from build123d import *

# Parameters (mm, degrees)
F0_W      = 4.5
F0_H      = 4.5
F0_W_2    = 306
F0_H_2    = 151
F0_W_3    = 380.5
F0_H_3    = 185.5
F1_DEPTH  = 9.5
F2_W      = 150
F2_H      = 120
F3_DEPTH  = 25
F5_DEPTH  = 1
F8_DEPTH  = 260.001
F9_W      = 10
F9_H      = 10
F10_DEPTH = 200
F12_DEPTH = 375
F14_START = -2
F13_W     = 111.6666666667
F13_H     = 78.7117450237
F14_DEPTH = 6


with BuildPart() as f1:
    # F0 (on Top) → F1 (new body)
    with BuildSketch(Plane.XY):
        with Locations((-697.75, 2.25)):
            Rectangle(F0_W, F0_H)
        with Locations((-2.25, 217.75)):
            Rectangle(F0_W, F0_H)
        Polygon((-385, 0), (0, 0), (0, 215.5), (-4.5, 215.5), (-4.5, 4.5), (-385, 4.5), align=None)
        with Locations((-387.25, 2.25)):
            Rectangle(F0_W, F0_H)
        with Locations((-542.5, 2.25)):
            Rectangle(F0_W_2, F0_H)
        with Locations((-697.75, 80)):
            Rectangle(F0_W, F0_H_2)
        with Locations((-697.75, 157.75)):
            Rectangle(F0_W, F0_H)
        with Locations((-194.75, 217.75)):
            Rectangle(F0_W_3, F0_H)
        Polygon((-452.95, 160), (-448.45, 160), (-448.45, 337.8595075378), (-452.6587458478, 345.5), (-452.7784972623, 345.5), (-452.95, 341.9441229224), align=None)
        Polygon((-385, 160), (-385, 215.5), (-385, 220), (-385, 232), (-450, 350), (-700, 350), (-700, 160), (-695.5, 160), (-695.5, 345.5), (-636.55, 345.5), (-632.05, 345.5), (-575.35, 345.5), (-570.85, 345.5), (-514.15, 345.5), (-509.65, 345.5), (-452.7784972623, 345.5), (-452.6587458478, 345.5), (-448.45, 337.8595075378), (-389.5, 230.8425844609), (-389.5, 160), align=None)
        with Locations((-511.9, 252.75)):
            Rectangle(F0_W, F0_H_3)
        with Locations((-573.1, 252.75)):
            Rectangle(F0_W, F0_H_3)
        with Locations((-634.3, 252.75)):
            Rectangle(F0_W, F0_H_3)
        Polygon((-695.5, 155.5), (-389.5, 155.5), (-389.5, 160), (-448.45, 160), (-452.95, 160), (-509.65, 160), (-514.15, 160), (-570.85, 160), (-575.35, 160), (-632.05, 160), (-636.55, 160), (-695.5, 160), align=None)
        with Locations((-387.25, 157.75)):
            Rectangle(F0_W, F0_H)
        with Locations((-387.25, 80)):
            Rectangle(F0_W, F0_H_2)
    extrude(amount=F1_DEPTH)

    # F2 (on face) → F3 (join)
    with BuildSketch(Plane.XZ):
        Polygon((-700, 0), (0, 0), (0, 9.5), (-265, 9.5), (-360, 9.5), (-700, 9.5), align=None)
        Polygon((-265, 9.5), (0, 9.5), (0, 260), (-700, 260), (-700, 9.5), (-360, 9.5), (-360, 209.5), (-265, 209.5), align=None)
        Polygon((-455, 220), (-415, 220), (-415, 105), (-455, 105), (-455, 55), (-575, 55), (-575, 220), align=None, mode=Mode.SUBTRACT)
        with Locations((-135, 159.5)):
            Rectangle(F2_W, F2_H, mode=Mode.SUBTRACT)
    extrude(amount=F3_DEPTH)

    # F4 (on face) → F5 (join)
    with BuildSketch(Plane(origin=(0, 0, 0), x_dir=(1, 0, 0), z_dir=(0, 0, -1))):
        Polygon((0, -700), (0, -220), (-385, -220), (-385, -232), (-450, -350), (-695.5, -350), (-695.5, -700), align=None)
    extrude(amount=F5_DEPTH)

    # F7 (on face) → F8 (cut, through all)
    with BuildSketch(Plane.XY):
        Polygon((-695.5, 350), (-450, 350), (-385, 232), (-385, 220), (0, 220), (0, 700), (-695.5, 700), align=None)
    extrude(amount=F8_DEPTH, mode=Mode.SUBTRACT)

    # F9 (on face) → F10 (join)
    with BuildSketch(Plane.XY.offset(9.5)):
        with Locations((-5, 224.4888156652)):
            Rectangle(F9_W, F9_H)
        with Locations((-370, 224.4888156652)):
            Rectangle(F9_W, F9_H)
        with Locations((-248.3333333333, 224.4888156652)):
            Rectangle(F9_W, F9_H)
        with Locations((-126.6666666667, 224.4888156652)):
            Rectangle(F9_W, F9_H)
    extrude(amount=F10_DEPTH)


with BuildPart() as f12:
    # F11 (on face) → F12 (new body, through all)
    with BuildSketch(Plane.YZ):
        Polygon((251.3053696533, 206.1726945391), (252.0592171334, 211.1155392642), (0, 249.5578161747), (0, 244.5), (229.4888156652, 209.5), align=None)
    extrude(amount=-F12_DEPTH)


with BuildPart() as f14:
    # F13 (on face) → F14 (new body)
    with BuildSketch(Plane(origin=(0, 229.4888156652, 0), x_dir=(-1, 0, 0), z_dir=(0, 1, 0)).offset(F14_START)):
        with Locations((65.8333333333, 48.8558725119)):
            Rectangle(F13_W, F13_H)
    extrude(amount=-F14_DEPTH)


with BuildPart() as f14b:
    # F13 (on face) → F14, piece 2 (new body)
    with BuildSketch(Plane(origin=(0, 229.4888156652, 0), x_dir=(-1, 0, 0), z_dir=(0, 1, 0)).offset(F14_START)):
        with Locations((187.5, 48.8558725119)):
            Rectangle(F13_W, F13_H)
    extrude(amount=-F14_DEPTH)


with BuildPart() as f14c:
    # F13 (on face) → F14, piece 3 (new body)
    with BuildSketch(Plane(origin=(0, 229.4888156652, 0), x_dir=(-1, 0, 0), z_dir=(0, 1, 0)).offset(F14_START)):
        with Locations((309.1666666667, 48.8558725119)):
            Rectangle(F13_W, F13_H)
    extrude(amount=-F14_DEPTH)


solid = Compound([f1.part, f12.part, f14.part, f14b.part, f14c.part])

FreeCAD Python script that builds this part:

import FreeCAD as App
import Part
import Sketcher
Q = App.Units.Quantity


def add_polygon(sketch, points):
    """Adds a closed chain of lines whose ends are joined by coincident constraints."""
    first, n = sketch.GeometryCount, len(points)
    for a, b in zip(points, points[1:] + points[:1]):
        sketch.addGeometry(Part.LineSegment(App.Vector(*a, 0), App.Vector(*b, 0)), False)
    for i in range(n):
        sketch.addConstraint(Sketcher.Constraint("Coincident", first + i, 2, first + (i + 1) % n, 1))

doc = App.newDocument("Part")
params = doc.addObject("Spreadsheet::Sheet", "Params")
for row, (alias, value) in enumerate([
    ("sketch1_width", "700 mm"),
    ("sketch1_width2", "385 mm"),
    ("sketch1_width3", "250 mm"),
    ("sketch1_width4", "306 mm"),
    ("sketch1_height", "220 mm"),
    ("pad1_length", "9.5 mm"),
    ("sketch2_width", "700 mm"),
    ("sketch2_width2", "95 mm"),
    ("sketch2_width3", "160 mm"),
    ("sketch2_width4", "40 mm"),
    ("sketch2_width5", "150 mm"),
    ("pad2_length", "25 mm"),
    ("sketch3_width", "385 mm"),
    ("sketch3_height", "480 mm"),
    ("sketch3_height2", "12 mm"),
    ("sketch3_height3", "350 mm"),
    ("sketch3_width2", "245.5 mm"),
    ("pad3_length", "1 mm"),
    ("sketch4_width", "385 mm"),
    ("sketch4_height", "12 mm"),
    ("sketch4_height2", "480 mm"),
    ("sketch4_height3", "350 mm"),
    ("sketch4_width2", "245.5 mm"),
    ("sketch5_width", "10 mm"),
    ("pad4_length", "200 mm"),
    ("sketch6_length", "5 mm"),
    ("pad5_length", "375 mm"),
    ("pad6_length", "6 mm"),
    ("pad7_length", "6 mm"),
    ("pad8_length", "6 mm"),
], start=1):
    params.set(f"A{row}", alias)
    params.set(f"B{row}", "=" + value)
    params.setAlias(f"B{row}", alias)

body = doc.addObject("PartDesign::Body", "Body")
body.AllowCompound = True

sketch1 = body.newObject("Sketcher::SketchObject", "Sketch")
sketch1.AttachmentSupport = (doc.getObject("XY_Plane"), [""])
sketch1.MapMode = "FlatFace"
add_polygon(sketch1, [(-700, 0), (0, 0), (0, 220), (-385, 220), (-385, 232), (-450, 350), (-700, 350)])
add_polygon(sketch1, [(-695.5, 155.5), (-389.5, 155.5), (-389.5, 4.5), (-695.5, 4.5)])
add_polygon(sketch1, [(-385, 215.5), (-4.5, 215.5), (-4.5, 4.5), (-385, 4.5)])
add_polygon(sketch1, [(-695.5, 160), (-695.5, 345.5), (-636.5, 345.5), (-636.5, 160)])
add_polygon(sketch1, [(-632, 160), (-632, 345.5), (-575.4, 345.5), (-575.4, 160)])
add_polygon(sketch1, [(-570.9, 160), (-570.9, 345.5), (-514.1, 345.5), (-514.1, 160)])
add_polygon(sketch1, [(-509.6, 160), (-509.6, 345.5), (-452.8, 345.5), (-452.9, 341.9), (-452.9, 160)])
add_polygon(sketch1, [(-389.5, 230.8), (-389.5, 160), (-448.4, 160), (-448.4, 337.9)])
sketch1.addConstraint(Sketcher.Constraint("Horizontal", 0))
sketch1.addConstraint(Sketcher.Constraint("Vertical", 1))
sketch1.addConstraint(Sketcher.Constraint("Horizontal", 2))
sketch1.addConstraint(Sketcher.Constraint("Vertical", 3))
sketch1.addConstraint(Sketcher.Constraint("Horizontal", 5))
sketch1.addConstraint(Sketcher.Constraint("Vertical", 6))
sketch1.addConstraint(Sketcher.Constraint("Horizontal", 7))
sketch1.addConstraint(Sketcher.Constraint("Vertical", 8))
sketch1.addConstraint(Sketcher.Constraint("Horizontal", 9))
sketch1.addConstraint(Sketcher.Constraint("Vertical", 10))
sketch1.addConstraint(Sketcher.Constraint("Horizontal", 11))
sketch1.addConstraint(Sketcher.Constraint("Vertical", 12))
sketch1.addConstraint(Sketcher.Constraint("Horizontal", 13))
sketch1.addConstraint(Sketcher.Constraint("Vertical", 14))
sketch1.addConstraint(Sketcher.Constraint("Vertical", 15))
sketch1.addConstraint(Sketcher.Constraint("Horizontal", 16))
sketch1.addConstraint(Sketcher.Constraint("Vertical", 17))
sketch1.addConstraint(Sketcher.Constraint("Horizontal", 18))
sketch1.addConstraint(Sketcher.Constraint("Vertical", 19))
sketch1.addConstraint(Sketcher.Constraint("Horizontal", 20))
sketch1.addConstraint(Sketcher.Constraint("Vertical", 21))
sketch1.addConstraint(Sketcher.Constraint("Horizontal", 22))
sketch1.addConstraint(Sketcher.Constraint("Vertical", 23))
sketch1.addConstraint(Sketcher.Constraint("Horizontal", 24))
sketch1.addConstraint(Sketcher.Constraint("Vertical", 25))
sketch1.addConstraint(Sketcher.Constraint("Horizontal", 26))
sketch1.addConstraint(Sketcher.Constraint("Vertical", 27))
sketch1.addConstraint(Sketcher.Constraint("Horizontal", 28))
sketch1.addConstraint(Sketcher.Constraint("Vertical", 30))
sketch1.addConstraint(Sketcher.Constraint("Horizontal", 31))
sketch1.addConstraint(Sketcher.Constraint("Vertical", 32))
sketch1.addConstraint(Sketcher.Constraint("Horizontal", 33))
sketch1.addConstraint(Sketcher.Constraint("Vertical", 34))
sketch1.addConstraint(Sketcher.Constraint("Coincident", 0, 2, -1, 1))
sketch1.addConstraint(Sketcher.Constraint("Parallel", 4, 35))
sketch1.addConstraint(Sketcher.Constraint("Horizontal", 9, 2, 12, 2))
sketch1.addConstraint(Sketcher.Constraint("Horizontal", 16, 2, 19, 2))
sketch1.addConstraint(Sketcher.Constraint("Horizontal", 18, 2, 21, 2))
sketch1.addConstraint(Sketcher.Constraint("Horizontal", 20, 2, 23, 2))
sketch1.addConstraint(Sketcher.Constraint("Horizontal", 22, 2, 25, 2))
sketch1.addConstraint(Sketcher.Constraint("Horizontal", 24, 2, 27, 2))
sketch1.addConstraint(Sketcher.Constraint("Horizontal", 26, 2, 30, 2))
sketch1.addConstraint(Sketcher.Constraint("Horizontal", 31, 2, 32, 2))
sketch1.addConstraint(Sketcher.Constraint("Vertical", 3, 2, 13, 2))
sketch1.addConstraint(Sketcher.Constraint("Vertical", 10, 2, 15, 2))
sketch1.addConstraint(Sketcher.Constraint("Vertical", 8, 2, 32, 2))
sketch1.addConstraint(Sketcher.Constraint("Equal", 22, 24))
sketch1.addConstraint(Sketcher.Constraint("Equal", 26, 31))
sketch1.addConstraint(Sketcher.Constraint("Equal", 18, 33))
sketch1.addConstraint(Sketcher.Constraint("DistanceX", 0, 1, 0, 2, Q("700 mm")))
sketch1.addConstraint(Sketcher.Constraint("DistanceX", 2, 2, 2, 1, Q("385 mm")))
sketch1.addConstraint(Sketcher.Constraint("DistanceX", 5, 2, 5, 1, Q("250 mm")))
sketch1.addConstraint(Sketcher.Constraint("DistanceX", 7, 1, 7, 2, Q("306 mm")))
sketch1.addConstraint(Sketcher.Constraint("DistanceY", 1, 1, 1, 2, Q("220 mm")))
sketch1.addConstraint(Sketcher.Constraint("DistanceY", 3, 1, 3, 2, Q("12 mm")))
sketch1.addConstraint(Sketcher.Constraint("DistanceY", 6, 2, 6, 1, Q("350 mm")))
sketch1.addConstraint(Sketcher.Constraint("DistanceY", 8, 2, 8, 1, Q("151 mm")))
sketch1.addConstraint(Sketcher.Constraint("DistanceY", 12, 2, 12, 1, Q("211 mm")))
sketch1.addConstraint(Sketcher.Constraint("DistanceX", 11, 1, 11, 2, Q("380.5 mm")))
sketch1.addConstraint(Sketcher.Constraint("DistanceX", 20, 1, 20, 2, Q("56.7 mm")))
sketch1.addConstraint(Sketcher.Constraint("DistanceY", 15, 1, 15, 2, Q("185.5 mm")))
sketch1.addConstraint(Sketcher.Constraint("DistanceY", -1, 1, 17, 2, Q("160 mm")))
sketch1.addConstraint(Sketcher.Constraint("DistanceX", 7, 2, 11, 2, Q("385 mm")))
sketch1.addConstraint(Sketcher.Constraint("DistanceY", 10, 2, 15, 2, Q("190 mm")))
sketch1.addConstraint(Sketcher.Constraint("DistanceX", 16, 1, 16, 2, Q("58.95 mm")))
sketch1.addConstraint(Sketcher.Constraint("DistanceX", 16, 2, 19, 2, Q("4.5 mm")))
sketch1.addConstraint(Sketcher.Constraint("DistanceX", 20, 2, 23, 2, Q("4.5 mm")))
sketch1.addConstraint(Sketcher.Constraint("DistanceX", 24, 2, 27, 2, Q("4.5 mm")))
sketch1.addConstraint(Sketcher.Constraint("Distance", 29, Q("3.560011 mm")))
sketch1.addConstraint(Sketcher.Constraint("DistanceX", 28, 1, 28, 2, Q("56.871503 mm")))
sketch1.addConstraint(Sketcher.Constraint("DistanceY", 32, 2, 32, 1, Q("70.842584 mm")))
sketch1.setExpression("Constraints[85]", "Params.sketch1_width")
sketch1.setExpression("Constraints[86]", "Params.sketch1_width2")
sketch1.setExpression("Constraints[87]", "Params.sketch1_width3")
sketch1.setExpression("Constraints[88]", "Params.sketch1_width4")
sketch1.setExpression("Constraints[89]", "Params.sketch1_height")
pad1 = body.newObject("PartDesign::Pad", "Pad")
pad1.Profile = sketch1
pad1.setExpression("Length", "Params.pad1_length")

sketch2 = body.newObject("Sketcher::SketchObject", "Sketch001")
sketch2.AttachmentSupport = (doc.getObject("XZ_Plane"), [""])
sketch2.MapMode = "FlatFace"
add_polygon(sketch2, [(-700, 0), (0, 0), (0, 260), (-700, 260)])
add_polygon(sketch2, [(-265, 10), (-360, 10), (-360, 210), (-265, 210)])
add_polygon(sketch2, [(-575, 220), (-415, 220), (-415, 105), (-455, 105), (-455, 55), (-575, 55)])
add_polygon(sketch2, [(-60, 100), (-210, 100), (-210, 220), (-60, 220)])
sketch2.addConstraint(Sketcher.Constraint("Horizontal", 0))
sketch2.addConstraint(Sketcher.Constraint("Vertical", 1))
sketch2.addConstraint(Sketcher.Constraint("Horizontal", 2))
sketch2.addConstraint(Sketcher.Constraint("Vertical", 3))
sketch2.addConstraint(Sketcher.Constraint("Horizontal", 4))
sketch2.addConstraint(Sketcher.Constraint("Vertical", 5))
sketch2.addConstraint(Sketcher.Constraint("Horizontal", 6))
sketch2.addConstraint(Sketcher.Constraint("Vertical", 7))
sketch2.addConstraint(Sketcher.Constraint("Horizontal", 8))
sketch2.addConstraint(Sketcher.Constraint("Vertical", 9))
sketch2.addConstraint(Sketcher.Constraint("Horizontal", 10))
sketch2.addConstraint(Sketcher.Constraint("Vertical", 11))
sketch2.addConstraint(Sketcher.Constraint("Horizontal", 12))
sketch2.addConstraint(Sketcher.Constraint("Vertical", 13))
sketch2.addConstraint(Sketcher.Constraint("Horizontal", 14))
sketch2.addConstraint(Sketcher.Constraint("Vertical", 15))
sketch2.addConstraint(Sketcher.Constraint("Horizontal", 16))
sketch2.addConstraint(Sketcher.Constraint("Vertical", 17))
sketch2.addConstraint(Sketcher.Constraint("Coincident", 0, 2, -1, 1))
sketch2.addConstraint(Sketcher.Constraint("Equal", 12, 15))
sketch2.addConstraint(Sketcher.Constraint("DistanceX", 0, 1, 0, 2, Q("700 mm")))
sketch2.addConstraint(Sketcher.Constraint("DistanceX", 4, 2, 4, 1, Q("95 mm")))
sketch2.addConstraint(Sketcher.Constraint("DistanceX", 8, 1, 8, 2, Q("160 mm")))
sketch2.addConstraint(Sketcher.Constraint("DistanceX", 10, 2, 10, 1, Q("40 mm")))
sketch2.addConstraint(Sketcher.Constraint("DistanceX", 14, 2, 14, 1, Q("150 mm")))
sketch2.addConstraint(Sketcher.Constraint("DistanceY", 1, 1, 1, 2, Q("260 mm")))
sketch2.addConstraint(Sketcher.Constraint("DistanceY", 5, 1, 5, 2, Q("200 mm")))
sketch2.addConstraint(Sketcher.Constraint("DistanceY", 9, 2, 9, 1, Q("115 mm")))
sketch2.addConstraint(Sketcher.Constraint("DistanceY", 11, 2, 11, 1, Q("50 mm")))
sketch2.addConstraint(Sketcher.Constraint("DistanceX", 4, 2, -1, 1, Q("360 mm")))
sketch2.addConstraint(Sketcher.Constraint("DistanceX", 8, 2, -1, 1, Q("415 mm")))
sketch2.addConstraint(Sketcher.Constraint("DistanceY", -1, 1, 8, 2, Q("220 mm")))
sketch2.addConstraint(Sketcher.Constraint("DistanceX", 14, 2, -1, 1, Q("210 mm")))
sketch2.addConstraint(Sketcher.Constraint("DistanceY", 7, 2, 14, 2, Q("90 mm")))
sketch2.addConstraint(Sketcher.Constraint("DistanceY", -1, 1, 4, 2, Q("9.5 mm")))
sketch2.setExpression("Constraints[38]", "Params.sketch2_width")
sketch2.setExpression("Constraints[39]", "Params.sketch2_width2")
sketch2.setExpression("Constraints[40]", "Params.sketch2_width3")
sketch2.setExpression("Constraints[41]", "Params.sketch2_width4")
sketch2.setExpression("Constraints[42]", "Params.sketch2_width5")
pad2 = body.newObject("PartDesign::Pad", "Pad001")
pad2.Profile = sketch2
pad2.setExpression("Length", "Params.pad2_length")

sketch3 = body.newObject("Sketcher::SketchObject", "Sketch002")
sketch3.AttachmentSupport = (doc.getObject("XY_Plane"), [""])
sketch3.MapMode = "FlatFace"
add_polygon(sketch3, [(0, 700), (0, 220), (-385, 220), (-385, 232), (-450, 350), (-696, 350), (-696, 700)])
sketch3.addConstraint(Sketcher.Constraint("Vertical", 0))
sketch3.addConstraint(Sketcher.Constraint("Horizontal", 1))
sketch3.addConstraint(Sketcher.Constraint("Vertical", 2))
sketch3.addConstraint(Sketcher.Constraint("Horizontal", 4))
sketch3.addConstraint(Sketcher.Constraint("Vertical", 5))
sketch3.addConstraint(Sketcher.Constraint("Horizontal", 6))
sketch3.addConstraint(Sketcher.Constraint("PointOnObject", 0, 2, -2))
sketch3.addConstraint(Sketcher.Constraint("DistanceX", 1, 2, 1, 1, Q("385 mm")))
sketch3.addConstraint(Sketcher.Constraint("DistanceY", 0, 2, 0, 1, Q("480 mm")))
sketch3.addConstraint(Sketcher.Constraint("DistanceY", 2, 1, 2, 2, Q("12 mm")))
sketch3.addConstraint(Sketcher.Constraint("DistanceY", 5, 1, 5, 2, Q("350 mm")))
sketch3.addConstraint(Sketcher.Constraint("DistanceX", 4, 2, 4, 1, Q("245.5 mm")))
sketch3.addConstraint(Sketcher.Constraint("DistanceX", 6, 1, 6, 2, Q("695.5 mm")))
sketch3.addConstraint(Sketcher.Constraint("DistanceY", -1, 1, 0, 2, Q("220 mm")))
sketch3.setExpression("Constraints[14]", "Params.sketch3_width")
sketch3.setExpression("Constraints[15]", "Params.sketch3_height")
sketch3.setExpression("Constraints[16]", "Params.sketch3_height2")
sketch3.setExpression("Constraints[17]", "Params.sketch3_height3")
sketch3.setExpression("Constraints[18]", "Params.sketch3_width2")
pad3 = body.newObject("PartDesign::Pad", "Pad002")
pad3.Profile = sketch3
pad3.setExpression("Length", "Params.pad3_length")
pad3.Reversed = True

sketch4 = body.newObject("Sketcher::SketchObject", "Sketch003")
sketch4.AttachmentSupport = (doc.getObject("XY_Plane"), [""])
sketch4.MapMode = "FlatFace"
add_polygon(sketch4, [(-696, 350), (-450, 350), (-385, 232), (-385, 220), (0, 220), (0, 700), (-696, 700)])
sketch4.addConstraint(Sketcher.Constraint("Horizontal", 0))
sketch4.addConstraint(Sketcher.Constraint("Vertical", 2))
sketch4.addConstraint(Sketcher.Constraint("Horizontal", 3))
sketch4.addConstraint(Sketcher.Constraint("Vertical", 4))
sketch4.addConstraint(Sketcher.Constraint("Horizontal", 5))
sketch4.addConstraint(Sketcher.Constraint("Vertical", 6))
sketch4.addConstraint(Sketcher.Constraint("PointOnObject", 3, 2, -2))
sketch4.addConstraint(Sketcher.Constraint("DistanceX", 3, 1, 3, 2, Q("385 mm")))
sketch4.addConstraint(Sketcher.Constraint("DistanceY", 2, 2, 2, 1, Q("12 mm")))
sketch4.addConstraint(Sketcher.Constraint("DistanceY", 4, 1, 4, 2, Q("480 mm")))
sketch4.addConstraint(Sketcher.Constraint("DistanceY", 6, 2, 6, 1, Q("350 mm")))
sketch4.addConstraint(Sketcher.Constraint("DistanceX", 0, 1, 0, 2, Q("245.5 mm")))
sketch4.addConstraint(Sketcher.Constraint("DistanceX", 5, 2, 5, 1, Q("695.5 mm")))
sketch4.addConstraint(Sketcher.Constraint("DistanceY", -1, 1, 0, 2, Q("350 mm")))
sketch4.setExpression("Constraints[14]", "Params.sketch4_width")
sketch4.setExpression("Constraints[15]", "Params.sketch4_height")
sketch4.setExpression("Constraints[16]", "Params.sketch4_height2")
sketch4.setExpression("Constraints[17]", "Params.sketch4_height3")
sketch4.setExpression("Constraints[18]", "Params.sketch4_width2")
pocket1 = body.newObject("PartDesign::Pocket", "Pocket")
pocket1.Profile = sketch4
pocket1.Type = "ThroughAll"
pocket1.Reversed = True

sketch5 = body.newObject("Sketcher::SketchObject", "Sketch004")
sketch5.AttachmentSupport = (doc.getObject("XY_Plane"), [""])
sketch5.MapMode = "FlatFace"
sketch5.AttachmentOffset = App.Placement(App.Vector(0, 0, 9.5), App.Rotation())
add_polygon(sketch5, [(-10, 229), (-10, 219), (0, 219), (0, 229)])
add_polygon(sketch5, [(-375, 229), (-375, 219), (-365, 219), (-365, 229)])
add_polygon(sketch5, [(-253, 229), (-253, 219), (-243, 219), (-243, 229)])
add_polygon(sketch5, [(-132, 229), (-132, 219), (-122, 219), (-122, 229)])
sketch5.addConstraint(Sketcher.Constraint("Vertical", 0))
sketch5.addConstraint(Sketcher.Constraint("Horizontal", 1))
sketch5.addConstraint(Sketcher.Constraint("Vertical", 2))
sketch5.addConstraint(Sketcher.Constraint("Horizontal", 3))
sketch5.addConstraint(Sketcher.Constraint("Vertical", 4))
sketch5.addConstraint(Sketcher.Constraint("Horizontal", 5))
sketch5.addConstraint(Sketcher.Constraint("Vertical", 6))
sketch5.addConstraint(Sketcher.Constraint("Horizontal", 7))
sketch5.addConstraint(Sketcher.Constraint("Vertical", 8))
sketch5.addConstraint(Sketcher.Constraint("Horizontal", 9))
sketch5.addConstraint(Sketcher.Constraint("Vertical", 10))
sketch5.addConstraint(Sketcher.Constraint("Horizontal", 11))
sketch5.addConstraint(Sketcher.Constraint("Vertical", 12))
sketch5.addConstraint(Sketcher.Constraint("Horizontal", 13))
sketch5.addConstraint(Sketcher.Constraint("Vertical", 14))
sketch5.addConstraint(Sketcher.Constraint("Horizontal", 15))
sketch5.addConstraint(Sketcher.Constraint("PointOnObject", 1, 2, -2))
sketch5.addConstraint(Sketcher.Constraint("Horizontal", 1, 2, 4, 2))
sketch5.addConstraint(Sketcher.Constraint("Horizontal", 3, 2, 6, 2))
sketch5.addConstraint(Sketcher.Constraint("Horizontal", 5, 2, 8, 2))
sketch5.addConstraint(Sketcher.Constraint("Horizontal", 7, 2, 10, 2))
sketch5.addConstraint(Sketcher.Constraint("Horizontal", 9, 2, 12, 2))
sketch5.addConstraint(Sketcher.Constraint("Horizontal", 11, 2, 14, 2))
sketch5.addConstraint(Sketcher.Constraint("Equal", 3, 5))
sketch5.addConstraint(Sketcher.Constraint("Equal", 7, 9))
sketch5.addConstraint(Sketcher.Constraint("Equal", 11, 13))
sketch5.addConstraint(Sketcher.Constraint("Equal", 15, 0))
sketch5.addConstraint(Sketcher.Constraint("DistanceX", 1, 1, 1, 2, Q("10 mm")))
sketch5.addConstraint(Sketcher.Constraint("DistanceX", 4, 2, -1, 1, Q("375 mm")))
sketch5.addConstraint(Sketcher.Constraint("DistanceY", -1, 1, 0, 2, Q("219.488816 mm")))
sketch5.addConstraint(Sketcher.Constraint("DistanceX", 8, 2, -1, 1, Q("253.333333 mm")))
sketch5.addConstraint(Sketcher.Constraint("DistanceX", 12, 2, -1, 1, Q("131.666667 mm")))
sketch5.setExpression("Constraints[43]", "Params.sketch5_width")
pad4 = body.newObject("PartDesign::Pad", "Pad003")
pad4.Profile = sketch5
pad4.setExpression("Length", "Params.pad4_length")
body2 = doc.addObject("PartDesign::Body", "Body001")

sketch6 = body2.newObject("Sketcher::SketchObject", "Sketch005")
sketch6.AttachmentSupport = (doc.getObject("YZ_Plane001"), [""])
sketch6.MapMode = "FlatFace"
add_polygon(sketch6, [(251.3, 206.2), (252.1, 211.1), (0, 249.6), (0, 244.5), (229.5, 209.5)])
sketch6.addConstraint(Sketcher.Constraint("Vertical", 2))
sketch6.addConstraint(Sketcher.Constraint("PointOnObject", 1, 2, -2))
sketch6.addConstraint(Sketcher.Constraint("Perpendicular", 0, 1))
sketch6.addConstraint(Sketcher.Constraint("Parallel", 1, 3))
sketch6.addConstraint(Sketcher.Constraint("Parallel", 3, 4))
sketch6.addConstraint(Sketcher.Constraint("Distance", 0, Q("5 mm")))
sketch6.addConstraint(Sketcher.Constraint("DistanceY", 3, 2, 2, 2, Q("35 mm")))
sketch6.addConstraint(Sketcher.Constraint("DistanceY", -1, 1, 2, 2, Q("244.5 mm")))
sketch6.addConstraint(Sketcher.Constraint("DistanceX", 3, 2, 0, 2, Q("22.570401 mm")))
sketch6.addConstraint(Sketcher.Constraint("Distance", 3, Q("232.142449 mm")))
sketch6.setExpression("Constraints[10]", "Params.sketch6_length")
pad5 = body2.newObject("PartDesign::Pad", "Pad004")
pad5.Profile = sketch6
pad5.setExpression("Length", "Params.pad5_length")
pad5.Reversed = True
body3 = doc.addObject("PartDesign::Body", "Body002")

sketch7 = body3.newObject("Sketcher::SketchObject", "Sketch006")
sketch7.AttachmentSupport = (doc.getObject("XZ_Plane002"), [""])
sketch7.MapMode = "FlatFace"
sketch7.AttachmentOffset = App.Placement(App.Vector(0, 0, -227.488816), App.Rotation())
add_polygon(sketch7, [(-10, 88), (-10, 10), (-122, 10), (-122, 88)])
sketch7.addConstraint(Sketcher.Constraint("Vertical", 0))
sketch7.addConstraint(Sketcher.Constraint("Horizontal", 1))
sketch7.addConstraint(Sketcher.Constraint("Vertical", 2))
sketch7.addConstraint(Sketcher.Constraint("Horizontal", 3))
sketch7.addConstraint(Sketcher.Constraint("DistanceX", 0, 2, -1, 1, Q("10 mm")))
sketch7.addConstraint(Sketcher.Constraint("DistanceY", -1, 1, 0, 2, Q("9.5 mm")))
sketch7.addConstraint(Sketcher.Constraint("DistanceX", 1, 2, 1, 1, Q("111.666667 mm")))
sketch7.addConstraint(Sketcher.Constraint("DistanceY", 0, 2, 0, 1, Q("78.711745 mm")))
pad6 = body3.newObject("PartDesign::Pad", "Pad005")
pad6.Profile = sketch7
pad6.setExpression("Length", "Params.pad6_length")
body4 = doc.addObject("PartDesign::Body", "Body003")

sketch8 = body4.newObject("Sketcher::SketchObject", "Sketch007")
sketch8.AttachmentSupport = (doc.getObject("XZ_Plane003"), [""])
sketch8.MapMode = "FlatFace"
sketch8.AttachmentOffset = App.Placement(App.Vector(0, 0, -227.488816), App.Rotation())
add_polygon(sketch8, [(-132, 88), (-132, 10), (-243, 10), (-243, 88)])
sketch8.addConstraint(Sketcher.Constraint("Vertical", 0))
sketch8.addConstraint(Sketcher.Constraint("Horizontal", 1))
sketch8.addConstraint(Sketcher.Constraint("Vertical", 2))
sketch8.addConstraint(Sketcher.Constraint("Horizontal", 3))
sketch8.addConstraint(Sketcher.Constraint("DistanceY", -1, 1, 0, 2, Q("9.5 mm")))
sketch8.addConstraint(Sketcher.Constraint("DistanceX", 1, 2, 1, 1, Q("111.666667 mm")))
sketch8.addConstraint(Sketcher.Constraint("DistanceY", 0, 2, 0, 1, Q("78.711745 mm")))
sketch8.addConstraint(Sketcher.Constraint("DistanceX", 0, 2, -1, 1, Q("131.666667 mm")))
pad7 = body4.newObject("PartDesign::Pad", "Pad006")
pad7.Profile = sketch8
pad7.setExpression("Length", "Params.pad7_length")
body5 = doc.addObject("PartDesign::Body", "Body004")

sketch9 = body5.newObject("Sketcher::SketchObject", "Sketch008")
sketch9.AttachmentSupport = (doc.getObject("XZ_Plane004"), [""])
sketch9.MapMode = "FlatFace"
sketch9.AttachmentOffset = App.Placement(App.Vector(0, 0, -227.488816), App.Rotation())
add_polygon(sketch9, [(-253, 88), (-253, 10), (-365, 10), (-365, 88)])
sketch9.addConstraint(Sketcher.Constraint("Vertical", 0))
sketch9.addConstraint(Sketcher.Constraint("Horizontal", 1))
sketch9.addConstraint(Sketcher.Constraint("Vertical", 2))
sketch9.addConstraint(Sketcher.Constraint("Horizontal", 3))
sketch9.addConstraint(Sketcher.Constraint("DistanceX", 1, 2, -1, 1, Q("365 mm")))
sketch9.addConstraint(Sketcher.Constraint("DistanceY", -1, 1, 0, 2, Q("9.5 mm")))
sketch9.addConstraint(Sketcher.Constraint("DistanceX", 1, 2, 1, 1, Q("111.666667 mm")))
sketch9.addConstraint(Sketcher.Constraint("DistanceY", 0, 2, 0, 1, Q("78.711745 mm")))
pad8 = body5.newObject("PartDesign::Pad", "Pad007")
pad8.Profile = sketch9
pad8.setExpression("Length", "Params.pad8_length")

doc.recompute()
